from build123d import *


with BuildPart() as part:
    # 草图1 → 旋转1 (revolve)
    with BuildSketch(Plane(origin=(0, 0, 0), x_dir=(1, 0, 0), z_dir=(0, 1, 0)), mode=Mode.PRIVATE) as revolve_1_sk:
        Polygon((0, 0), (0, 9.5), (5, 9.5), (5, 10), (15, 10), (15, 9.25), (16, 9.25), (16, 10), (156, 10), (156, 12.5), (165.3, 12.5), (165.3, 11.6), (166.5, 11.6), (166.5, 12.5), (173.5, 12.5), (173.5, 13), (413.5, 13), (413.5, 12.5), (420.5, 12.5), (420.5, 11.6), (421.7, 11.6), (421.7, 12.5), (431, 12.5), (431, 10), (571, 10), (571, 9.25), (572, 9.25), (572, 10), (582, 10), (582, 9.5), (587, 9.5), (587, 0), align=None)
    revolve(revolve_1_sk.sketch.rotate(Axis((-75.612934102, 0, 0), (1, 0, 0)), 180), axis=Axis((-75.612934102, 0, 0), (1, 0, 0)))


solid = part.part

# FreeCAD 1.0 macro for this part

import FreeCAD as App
import Part
import Sketcher

V = App.Vector
Q = App.Units.Quantity


def add_polygon(sketch, points):
    """Adds a closed chain of lines whose ends are joined by coincident constraints."""
    first, n = sketch.GeometryCount, len(points)
    for a, b in zip(points, points[1:] + points[:1]):
        sketch.addGeometry(Part.LineSegment(App.Vector(*a, 0), App.Vector(*b, 0)), False)
    for i in range(n):
        sketch.addConstraint(Sketcher.Constraint("Coincident", first + i, 2, first + (i + 1) % n, 1))

doc = App.newDocument("Part")
body = doc.addObject("PartDesign::Body", "Body")

sketch1 = body.newObject("Sketcher::SketchObject", "Sketch")
sketch1.AttachmentSupport = (doc.getObject("XZ_Plane"), [""])
sketch1.MapMode = "FlatFace"
add_polygon(sketch1, [(0, -9.5), (0, 0), (587, 0), (587, -9.5), (582, -9.5), (582, -10), (572, -10), (572, -9.25), (571, -9.25), (571, -10), (431, -10), (431, -12.5), (421.7, -12.5), (421.7, -11.6), (420.5, -11.6), (420.5, -12.5), (413.5, -12.5), (413.5, -13), (173.5, -13), (173.5, -12.5), (166.5, -12.5), (166.5, -11.6), (165.3, -11.6), (165.3, -12.5), (156, -12.5), (156, -10), (16, -10), (16, -9.25), (15, -9.25), (15, -10), (5, -10), (5, -9.5)])
sketch1.addConstraint([
    Sketcher.Constraint("Vertical", 0),
    Sketcher.Constraint("Horizontal", 1),
    Sketcher.Constraint("Vertical", 2),
    Sketcher.Constraint("Horizontal", 3),
    Sketcher.Constraint("Vertical", 4),
    Sketcher.Constraint("Horizontal", 5),
    Sketcher.Constraint("Vertical", 6),
    Sketcher.Constraint("Horizontal", 7),
    Sketcher.Constraint("Vertical", 8),
    Sketcher.Constraint("Horizontal", 9),
    Sketcher.Constraint("Vertical", 10),
    Sketcher.Constraint("Horizontal", 11),
    Sketcher.Constraint("Vertical", 12),
    Sketcher.Constraint("Horizontal", 13),
    Sketcher.Constraint("Vertical", 14),
    Sketcher.Constraint("Horizontal", 15),
    Sketcher.Constraint("Vertical", 16),
    Sketcher.Constraint("Horizontal", 17),
    Sketcher.Constraint("Vertical", 18),
    Sketcher.Constraint("Horizontal", 19),
    Sketcher.Constraint("Vertical", 20),
    Sketcher.Constraint("Horizontal", 21),
    Sketcher.Constraint("Vertical", 22),
    Sketcher.Constraint("Horizontal", 23),
    Sketcher.Constraint("Vertical", 24),
    Sketcher.Constraint("Horizontal", 25),
    Sketcher.Constraint("Vertical", 26),
    Sketcher.Constraint("Horizontal", 27),
    Sketcher.Constraint("Vertical", 28),
    Sketcher.Constraint("Horizontal", 29),
    Sketcher.Constraint("Vertical", 30),
    Sketcher.Constraint("Horizontal", 31),
    Sketcher.Constraint("Coincident", 0, 2, -1, 1),
    Sketcher.Constraint("Horizontal", 5, 2, 8, 2),
    Sketcher.Constraint("Horizontal", 11, 2, 14, 2),
    Sketcher.Constraint("Horizontal", 15, 2, 18, 2),
    Sketcher.Constraint("Horizontal", 13, 2, 20, 2),
    Sketcher.Constraint("Horizontal", 19, 2, 22, 2),
    Sketcher.Constraint("Horizontal", 9, 2, 24, 2),
    Sketcher.Constraint("Horizontal", 7, 2, 26, 2),
    Sketcher.Constraint("Horizontal", 25, 2, 28, 2),
    Sketcher.Constraint("Horizontal", 3, 2, 30, 2),
    Sketcher.Constraint("Equal", 15, 19),
    Sketcher.Constraint("Equal", 13, 21),
    Sketcher.Constraint("Equal", 11, 23),
    Sketcher.Constraint("Equal", 9, 25),
    Sketcher.Constraint("Equal", 7, 27),
    Sketcher.Constraint("Equal", 5, 29),
    Sketcher.Constraint("Equal", 3, 31),
    Sketcher.Constraint("Equal", 4, 16),
    Sketcher.Constraint("DistanceX", 1, 1, 1, 2, Q("587 mm")),
    Sketcher.Constraint("DistanceX", 3, 2, 3, 1, Q("5 mm")),
    Sketcher.Constraint("DistanceX", 5, 2, 5, 1, Q("10 mm")),
    Sketcher.Constraint("DistanceX", 7, 2, 7, 1, Q("1 mm")),
    Sketcher.Constraint("DistanceX", 9, 2, 9, 1, Q("140 mm")),
    Sketcher.Constraint("DistanceX", 15, 2, 15, 1, Q("7 mm")),
    Sketcher.Constraint("DistanceX", 17, 2, 17, 1, Q("240 mm")),
    Sketcher.Constraint("DistanceX", 11, 2, 11, 1, Q("9.3 mm")),
    Sketcher.Constraint("DistanceY", 0, 1, 0, 2, Q("9.5 mm")),
    Sketcher.Constraint("DistanceY", 4, 2, 4, 1, Q("0.5 mm")),
    Sketcher.Constraint("DistanceY", 10, 2, 10, 1, Q("2.5 mm")),
    Sketcher.Constraint("DistanceY", 12, 1, 12, 2, Q("0.9 mm")),
    Sketcher.Constraint("DistanceY", 6, 1, 6, 2, Q("0.75 mm")),
])
revolution = body.newObject("PartDesign::Revolution", "Revolution")
revolution.Profile = sketch1
revolution.ReferenceAxis = (sketch1, ["H_Axis"])
revolution.Angle = 360

doc.recompute()
